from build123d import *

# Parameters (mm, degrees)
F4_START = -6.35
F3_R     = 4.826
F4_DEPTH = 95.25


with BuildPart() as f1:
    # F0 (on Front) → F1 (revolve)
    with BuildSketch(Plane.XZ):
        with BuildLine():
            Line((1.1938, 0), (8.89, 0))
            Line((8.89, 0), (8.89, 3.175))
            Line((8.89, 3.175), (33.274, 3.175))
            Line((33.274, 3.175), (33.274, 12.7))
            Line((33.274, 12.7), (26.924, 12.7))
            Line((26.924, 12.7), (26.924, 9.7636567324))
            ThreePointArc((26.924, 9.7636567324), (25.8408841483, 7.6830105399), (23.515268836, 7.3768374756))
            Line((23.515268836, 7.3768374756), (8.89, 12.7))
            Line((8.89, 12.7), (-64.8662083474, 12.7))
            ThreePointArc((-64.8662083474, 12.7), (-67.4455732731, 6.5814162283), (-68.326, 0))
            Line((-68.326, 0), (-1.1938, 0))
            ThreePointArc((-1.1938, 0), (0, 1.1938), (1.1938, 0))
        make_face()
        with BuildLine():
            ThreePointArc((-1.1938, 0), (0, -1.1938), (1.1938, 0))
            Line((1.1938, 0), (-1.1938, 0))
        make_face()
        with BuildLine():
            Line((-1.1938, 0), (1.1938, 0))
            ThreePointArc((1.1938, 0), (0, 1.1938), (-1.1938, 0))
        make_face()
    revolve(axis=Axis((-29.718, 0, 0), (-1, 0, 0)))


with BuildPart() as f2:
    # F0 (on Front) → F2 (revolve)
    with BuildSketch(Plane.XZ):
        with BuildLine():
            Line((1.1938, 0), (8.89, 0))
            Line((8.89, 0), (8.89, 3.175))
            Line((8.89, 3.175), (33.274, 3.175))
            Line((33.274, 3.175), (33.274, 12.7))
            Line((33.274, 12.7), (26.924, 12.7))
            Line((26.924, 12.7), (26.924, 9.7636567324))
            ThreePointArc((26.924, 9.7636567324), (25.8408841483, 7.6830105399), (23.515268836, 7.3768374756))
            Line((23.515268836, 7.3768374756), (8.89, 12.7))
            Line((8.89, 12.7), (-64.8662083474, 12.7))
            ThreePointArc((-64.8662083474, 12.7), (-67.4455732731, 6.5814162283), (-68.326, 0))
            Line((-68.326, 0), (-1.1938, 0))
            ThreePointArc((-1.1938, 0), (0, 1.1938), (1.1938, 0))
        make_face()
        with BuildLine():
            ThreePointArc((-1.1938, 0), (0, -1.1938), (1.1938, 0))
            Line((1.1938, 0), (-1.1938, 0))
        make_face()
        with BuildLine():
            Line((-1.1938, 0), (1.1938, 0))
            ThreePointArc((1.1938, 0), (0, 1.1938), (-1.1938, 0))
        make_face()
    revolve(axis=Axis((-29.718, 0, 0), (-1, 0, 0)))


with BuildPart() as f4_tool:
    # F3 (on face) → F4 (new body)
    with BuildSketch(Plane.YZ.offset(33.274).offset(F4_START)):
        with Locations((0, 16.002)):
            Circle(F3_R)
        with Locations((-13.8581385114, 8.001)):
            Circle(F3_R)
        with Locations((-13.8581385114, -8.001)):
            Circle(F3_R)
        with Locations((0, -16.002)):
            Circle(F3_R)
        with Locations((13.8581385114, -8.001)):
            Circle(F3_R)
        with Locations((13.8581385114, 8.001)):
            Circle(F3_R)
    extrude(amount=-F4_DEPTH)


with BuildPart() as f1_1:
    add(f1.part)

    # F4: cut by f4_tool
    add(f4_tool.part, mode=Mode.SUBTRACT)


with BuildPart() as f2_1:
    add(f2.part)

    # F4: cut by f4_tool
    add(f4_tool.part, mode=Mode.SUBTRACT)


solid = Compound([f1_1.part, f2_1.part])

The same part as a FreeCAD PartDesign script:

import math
import FreeCAD as App
import Part
import Sketcher
from FreeCAD import Vector
Q = App.Units.Quantity

doc = App.newDocument("Part")
body = doc.addObject("PartDesign::Body", "Body")

# Sketch on XZ plane
sketch1 = body.newObject("Sketcher::SketchObject", "Sketch")
sketch1.AttachmentSupport = (doc.getObject("XZ_Plane"), [""])
sketch1.MapMode = "FlatFace"
sketch1.addGeometry([
    Part.LineSegment(Vector(1.1938, 0, 0), Vector(8.89, 0, 0)),  # 0
    Part.LineSegment(Vector(8.89, 0, 0), Vector(8.89, 3.175, 0)),  # 1
    Part.LineSegment(Vector(8.89, 3.175, 0), Vector(33.274, 3.175, 0)),  # 2
    Part.LineSegment(Vector(33.274, 3.175, 0), Vector(33.274, 12.7, 0)),  # 3
    Part.LineSegment(Vector(33.274, 12.7, 0), Vector(26.924, 12.7, 0)),  # 4
    Part.LineSegment(Vector(26.924, 12.7, 0), Vector(26.924, 9.763657, 0)),  # 5
    Part.ArcOfCircle(Part.Circle(Vector(24.384, 9.763657, 0), Vector(0, 0, 1), 2.54), math.radians(-110), math.radians(0)),  # 6
    Part.LineSegment(Vector(23.515269, 7.376837, 0), Vector(8.89, 12.7, 0)),  # 7
    Part.LineSegment(Vector(8.89, 12.7, 0), Vector(-64.866208, 12.7, 0)),  # 8
    Part.ArcOfCircle(Part.Circle(Vector(-43.286897, 0, 0), Vector(0, 0, 1), 25.039103), math.radians(149.522054), math.radians(180)),  # 9
    Part.LineSegment(Vector(-68.326, 0, 0), Vector(-1.1938, 0, 0)),  # 10
    Part.ArcOfCircle(Part.Circle(Vector(0, 0, 0), Vector(0, 0, 1), 1.1938), math.radians(180), math.radians(360)),  # 11
], False)
sketch1.addConstraint([
    Sketcher.Constraint("Coincident", 0, 2, 1, 1),
    Sketcher.Constraint("Coincident", 1, 2, 2, 1),
    Sketcher.Constraint("Coincident", 2, 2, 3, 1),
    Sketcher.Constraint("Coincident", 3, 2, 4, 1),
    Sketcher.Constraint("Coincident", 4, 2, 5, 1),
    Sketcher.Constraint("Tangent", 5, 2, 6, 2),
    Sketcher.Constraint("Tangent", 6, 1, 7, 1),
    Sketcher.Constraint("Coincident", 7, 2, 8, 1),
    Sketcher.Constraint("Coincident", 8, 2, 9, 1),
    Sketcher.Constraint("Coincident", 9, 2, 10, 1),
    Sketcher.Constraint("Coincident", 10, 2, 11, 1),
    Sketcher.Constraint("Coincident", 11, 2, 0, 1),
    Sketcher.Constraint("Horizontal", 0),
    Sketcher.Constraint("Vertical", 1),
    Sketcher.Constraint("Horizontal", 2),
    Sketcher.Constraint("Vertical", 3),
    Sketcher.Constraint("Horizontal", 4),
    Sketcher.Constraint("Vertical", 5),
    Sketcher.Constraint("Horizontal", 8),
    Sketcher.Constraint("Horizontal", 10),
    Sketcher.Constraint("Coincident", 11, 3, -1, 1),
    Sketcher.Constraint("PointOnObject", 9, 3, -1),
    Sketcher.Constraint("PointOnObject", 0, 2, -1),
    Sketcher.Constraint("PointOnObject", 9, 2, -1),
    Sketcher.Constraint("Horizontal", 4, 2, 7, 2),
    Sketcher.Constraint("Vertical", 1, 2, 7, 2),
    Sketcher.Constraint("Radius", 6, Q("0.1 in")),
    Sketcher.Constraint("Angle", 7, Q("160 deg")),
    Sketcher.Constraint("Radius", 11, Q("0.047 in")),
    Sketcher.Constraint("DistanceX", 2, 1, 2, 2, Q("0.96 in")),
    Sketcher.Constraint("DistanceX", 4, 2, 4, 1, Q("0.25 in")),
    Sketcher.Constraint("DistanceY", -1, 1, 3, 2, Q("0.5 in")),
    Sketcher.Constraint("DistanceX", 0, 1, 0, 2, Q("0.303 in")),
    Sketcher.Constraint("DistanceX", 10, 1, 10, 2, Q("2.643 in")),
    Sketcher.Constraint("DistanceY", 1, 1, 1, 2, Q("0.125 in")),
    Sketcher.Constraint("Radius", 9, Q("25.039103 mm")),
])
revolution = body.newObject("PartDesign::Revolution", "Revolution")
revolution.Profile = sketch1
revolution.ReferenceAxis = (sketch1, ["H_Axis"])
revolution.Angle = 360
body2 = doc.addObject("PartDesign::Body", "Body001")

# Sketch on XZ plane
sketch2 = body2.newObject("Sketcher::SketchObject", "Sketch001")
sketch2.AttachmentSupport = (doc.getObject("XZ_Plane001"), [""])
sketch2.MapMode = "FlatFace"
sketch2.addGeometry([
    Part.LineSegment(Vector(1.1938, 0, 0), Vector(8.89, 0, 0)),  # 0
    Part.LineSegment(Vector(8.89, 0, 0), Vector(8.89, 3.175, 0)),  # 1
    Part.LineSegment(Vector(8.89, 3.175, 0), Vector(33.274, 3.175, 0)),  # 2
    Part.LineSegment(Vector(33.274, 3.175, 0), Vector(33.274, 12.7, 0)),  # 3
    Part.LineSegment(Vector(33.274, 12.7, 0), Vector(26.924, 12.7, 0)),  # 4
    Part.LineSegment(Vector(26.924, 12.7, 0), Vector(26.924, 9.763657, 0)),  # 5
    Part.ArcOfCircle(Part.Circle(Vector(24.384, 9.763657, 0), Vector(0, 0, 1), 2.54), math.radians(-110), math.radians(0)),  # 6
    Part.LineSegment(Vector(23.515269, 7.376837, 0), Vector(8.89, 12.7, 0)),  # 7
    Part.LineSegment(Vector(8.89, 12.7, 0), Vector(-64.866208, 12.7, 0)),  # 8
    Part.ArcOfCircle(Part.Circle(Vector(-43.286897, 0, 0), Vector(0, 0, 1), 25.039103), math.radians(149.522054), math.radians(180)),  # 9
    Part.LineSegment(Vector(-68.326, 0, 0), Vector(-1.1938, 0, 0)),  # 10
    Part.ArcOfCircle(Part.Circle(Vector(0, 0, 0), Vector(0, 0, 1), 1.1938), math.radians(180), math.radians(360)),  # 11
], False)
sketch2.addConstraint([
    Sketcher.Constraint("Coincident", 0, 2, 1, 1),
    Sketcher.Constraint("Coincident", 1, 2, 2, 1),
    Sketcher.Constraint("Coincident", 2, 2, 3, 1),
    Sketcher.Constraint("Coincident", 3, 2, 4, 1),
    Sketcher.Constraint("Coincident", 4, 2, 5, 1),
    Sketcher.Constraint("Tangent", 5, 2, 6, 2),
    Sketcher.Constraint("Tangent", 6, 1, 7, 1),
    Sketcher.Constraint("Coincident", 7, 2, 8, 1),
    Sketcher.Constraint("Coincident", 8, 2, 9, 1),
    Sketcher.Constraint("Coincident", 9, 2, 10, 1),
    Sketcher.Constraint("Coincident", 10, 2, 11, 1),
    Sketcher.Constraint("Coincident", 11, 2, 0, 1),
    Sketcher.Constraint("Horizontal", 0),
    Sketcher.Constraint("Vertical", 1),
    Sketcher.Constraint("Horizontal", 2),
    Sketcher.Constraint("Vertical", 3),
    Sketcher.Constraint("Horizontal", 4),
    Sketcher.Constraint("Vertical", 5),
    Sketcher.Constraint("Horizontal", 8),
    Sketcher.Constraint("Horizontal", 10),
    Sketcher.Constraint("Coincident", 11, 3, -1, 1),
    Sketcher.Constraint("PointOnObject", 9, 3, -1),
    Sketcher.Constraint("PointOnObject", 0, 2, -1),
    Sketcher.Constraint("PointOnObject", 9, 2, -1),
    Sketcher.Constraint("Horizontal", 4, 2, 7, 2),
    Sketcher.Constraint("Vertical", 1, 2, 7, 2),
    Sketcher.Constraint("Radius", 6, Q("0.1 in")),
    Sketcher.Constraint("Angle", 7, Q("160 deg")),
    Sketcher.Constraint("Radius", 11, Q("0.047 in")),
    Sketcher.Constraint("DistanceX", 2, 1, 2, 2, Q("0.96 in")),
    Sketcher.Constraint("DistanceX", 4, 2, 4, 1, Q("0.25 in")),
    Sketcher.Constraint("DistanceY", -1, 1, 3, 2, Q("0.5 in")),
    Sketcher.Constraint("DistanceX", 0, 1, 0, 2, Q("0.303 in")),
    Sketcher.Constraint("DistanceX", 10, 1, 10, 2, Q("2.643 in")),
    Sketcher.Constraint("DistanceY", 1, 1, 1, 2, Q("0.125 in")),
    Sketcher.Constraint("Radius", 9, Q("25.039103 mm")),
])
revolution2 = body2.newObject("PartDesign::Revolution", "Revolution001")
revolution2.Profile = sketch2
revolution2.ReferenceAxis = (sketch2, ["H_Axis"])
revolution2.Angle = 360
body3 = doc.addObject("PartDesign::Body", "Body002")
body3.AllowCompound = True

# Sketch on YZ plane
sketch3 = body3.newObject("Sketcher::SketchObject", "Sketch002")
sketch3.AttachmentSupport = (doc.getObject("YZ_Plane002"), [""])
sketch3.MapMode = "FlatFace"
sketch3.AttachmentOffset = App.Placement(Vector(0, 0, 1.06 * 25.4), App.Rotation())
sketch3.addGeometry([
    Part.Circle(Vector(0, 16.002, 0), Vector(0, 0, 1), 4.826),  # 0
    Part.Circle(Vector(-13.858139, 8.001, 0), Vector(0, 0, 1), 4.826),  # 1
    Part.Circle(Vector(-13.858139, -8.001, 0), Vector(0, 0, 1), 4.826),  # 2
    Part.Circle(Vector(0, -16.002, 0), Vector(0, 0, 1), 4.826),  # 3
    Part.Circle(Vector(13.858139, -8.001, 0), Vector(0, 0, 1), 4.826),  # 4
    Part.Circle(Vector(13.858139, 8.001, 0), Vector(0, 0, 1), 4.826),  # 5
], False)
sketch3.addConstraint([
    Sketcher.Constraint("Equal", 0, 1),
    Sketcher.Constraint("Equal", 1, 2),
    Sketcher.Constraint("Equal", 2, 3),
    Sketcher.Constraint("Equal", 3, 4),
    Sketcher.Constraint("Equal", 4, 5),
    Sketcher.Constraint("Symmetric", 0, 3, 3, 3, -1, 1),
    Sketcher.Constraint("Symmetric", 1, 3, 4, 3, -1, 1),
    Sketcher.Constraint("Symmetric", 2, 3, 5, 3, -1, 1),
    Sketcher.Constraint("Symmetric", 2, 3, 4, 3, -2),
    Sketcher.Constraint("PointOnObject", 0, 3, -2),
    Sketcher.Constraint("Diameter", 0, Q("0.38 in")),
    Sketcher.Constraint("DistanceY", -1, 1, 0, 3, Q("0.63 in")),
    Sketcher.Constraint("DistanceY", 2, 3, 1, 3, Q("0.63 in")),
    Sketcher.Constraint("DistanceX", 1, 3, -1, 1, Q("13.858139 mm")),
])
pad1 = body3.newObject("PartDesign::Pad", "Pad")
pad1.Profile = sketch3
pad1.Length = Q("3.75 in")
pad1.Reversed = True
doc.recompute()

body4 = doc.addObject("PartDesign::Body", "Body003")
body4.BaseFeature = body3
boolean = body.newObject("PartDesign::Boolean", "Boolean")
boolean.Type = "Cut"
boolean.addObjects([body4])
doc.recompute()

boolean2 = body2.newObject("PartDesign::Boolean", "Boolean001")
boolean2.Type = "Cut"
boolean2.addObjects([body3])

doc.recompute()
